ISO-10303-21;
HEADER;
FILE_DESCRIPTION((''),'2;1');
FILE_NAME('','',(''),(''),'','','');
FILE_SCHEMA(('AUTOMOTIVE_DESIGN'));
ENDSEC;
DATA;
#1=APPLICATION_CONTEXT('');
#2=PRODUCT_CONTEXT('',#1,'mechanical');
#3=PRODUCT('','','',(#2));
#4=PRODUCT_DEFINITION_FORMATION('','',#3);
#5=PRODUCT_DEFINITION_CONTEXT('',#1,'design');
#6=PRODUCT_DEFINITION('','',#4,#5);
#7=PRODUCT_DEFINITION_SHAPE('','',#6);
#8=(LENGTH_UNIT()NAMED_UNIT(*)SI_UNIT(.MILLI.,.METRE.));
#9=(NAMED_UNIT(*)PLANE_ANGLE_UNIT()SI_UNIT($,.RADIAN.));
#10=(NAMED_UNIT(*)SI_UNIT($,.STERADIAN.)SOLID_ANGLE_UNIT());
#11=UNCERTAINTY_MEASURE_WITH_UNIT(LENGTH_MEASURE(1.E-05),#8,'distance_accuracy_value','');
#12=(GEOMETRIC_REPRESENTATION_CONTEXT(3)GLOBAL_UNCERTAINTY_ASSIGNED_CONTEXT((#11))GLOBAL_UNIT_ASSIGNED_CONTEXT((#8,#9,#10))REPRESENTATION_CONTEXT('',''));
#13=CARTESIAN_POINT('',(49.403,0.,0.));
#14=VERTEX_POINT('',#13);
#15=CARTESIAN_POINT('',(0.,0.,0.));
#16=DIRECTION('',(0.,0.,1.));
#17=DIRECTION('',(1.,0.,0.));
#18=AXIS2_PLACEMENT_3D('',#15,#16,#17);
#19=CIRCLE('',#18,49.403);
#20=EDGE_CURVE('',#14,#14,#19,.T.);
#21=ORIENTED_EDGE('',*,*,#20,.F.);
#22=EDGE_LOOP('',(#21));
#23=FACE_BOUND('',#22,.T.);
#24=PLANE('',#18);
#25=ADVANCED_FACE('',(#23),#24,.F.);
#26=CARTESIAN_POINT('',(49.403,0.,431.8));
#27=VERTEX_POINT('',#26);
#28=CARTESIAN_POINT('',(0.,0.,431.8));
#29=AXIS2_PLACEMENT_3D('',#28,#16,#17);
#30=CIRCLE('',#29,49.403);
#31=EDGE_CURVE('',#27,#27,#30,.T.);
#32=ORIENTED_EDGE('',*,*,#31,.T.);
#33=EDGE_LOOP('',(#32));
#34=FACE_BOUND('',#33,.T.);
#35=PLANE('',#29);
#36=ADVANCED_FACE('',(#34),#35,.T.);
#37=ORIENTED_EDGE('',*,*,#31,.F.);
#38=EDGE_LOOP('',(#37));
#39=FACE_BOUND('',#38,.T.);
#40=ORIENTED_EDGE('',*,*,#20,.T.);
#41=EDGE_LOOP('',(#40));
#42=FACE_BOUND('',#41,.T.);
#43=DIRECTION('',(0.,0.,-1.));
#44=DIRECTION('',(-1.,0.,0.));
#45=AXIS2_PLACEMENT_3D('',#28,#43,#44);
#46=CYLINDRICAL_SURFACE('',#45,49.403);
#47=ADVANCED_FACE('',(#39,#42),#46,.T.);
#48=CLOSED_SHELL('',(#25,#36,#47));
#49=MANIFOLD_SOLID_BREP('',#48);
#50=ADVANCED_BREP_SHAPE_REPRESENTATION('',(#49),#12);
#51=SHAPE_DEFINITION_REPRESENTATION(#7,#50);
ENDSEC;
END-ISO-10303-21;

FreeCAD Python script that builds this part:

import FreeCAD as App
import Part
import Sketcher
Q = App.Units.Quantity

doc = App.newDocument("Part")
params = doc.addObject("Spreadsheet::Sheet", "Params")
for row, (alias, value) in enumerate([
    ("sketch1_diameter", "3.89 in"),
    ("pad1_length", "17 in"),
], start=1):
    params.set(f"A{row}", alias)
    params.set(f"B{row}", "=" + value)
    params.setAlias(f"B{row}", alias)

body = doc.addObject("PartDesign::Body", "Body")

# Sketch on XY plane
sketch1 = doc.addObject("Sketcher::SketchObject", "Sketch")
body.addObject(sketch1)
sketch1.AttachmentSupport = (doc.XY_Plane, [""])
sketch1.MapMode = "FlatFace"
sketch1.addGeometry(Part.Circle(App.Vector(0, 0, 0), App.Vector(0, 0, 1), 49), False)
sketch1.addConstraint([
    Sketcher.Constraint("Coincident", 0, 3, -1, 1),
    Sketcher.Constraint("Diameter", 0, Q("3.89 in")),
])
sketch1.setExpression("Constraints[1]", "Params.sketch1_diameter")
pad1 = doc.addObject("PartDesign::Pad", "Pad")
body.addObject(pad1)
pad1.Profile = sketch1
pad1.setExpression("Length", "Params.pad1_length")

doc.recompute()
